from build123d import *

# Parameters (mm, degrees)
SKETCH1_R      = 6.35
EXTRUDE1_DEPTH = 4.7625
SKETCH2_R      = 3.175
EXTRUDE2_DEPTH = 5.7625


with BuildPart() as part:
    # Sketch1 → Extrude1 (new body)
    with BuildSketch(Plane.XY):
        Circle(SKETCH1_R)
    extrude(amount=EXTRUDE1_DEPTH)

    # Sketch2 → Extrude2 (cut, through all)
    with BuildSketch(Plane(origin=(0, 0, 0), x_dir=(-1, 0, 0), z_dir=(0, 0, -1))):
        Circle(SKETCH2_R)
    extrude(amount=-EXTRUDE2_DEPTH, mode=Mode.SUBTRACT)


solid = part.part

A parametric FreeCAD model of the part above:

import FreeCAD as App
import Part
import Sketcher
from FreeCAD import Vector
Q = App.Units.Quantity

doc = App.newDocument("Part")
body = doc.addObject("PartDesign::Body", "Body")

# Sketch on XY plane
sketch1 = body.newObject("Sketcher::SketchObject", "Sketch")
sketch1.AttachmentSupport = (doc.getObject("XY_Plane"), [""])
sketch1.MapMode = "FlatFace"
sketch1.addGeometry(Part.Circle(Vector(0, 0, 0), Vector(0, 0, 1), 6), False)
sketch1.addConstraint([
    Sketcher.Constraint("Coincident", 0, 3, -1, 1),
    Sketcher.Constraint("Diameter", 0, Q("0.5 in")),
])
pad1 = body.newObject("PartDesign::Pad", "Pad")
pad1.Profile = sketch1
pad1.Length = Q("0.1875 in")

# Sketch on XY plane
sketch2 = body.newObject("Sketcher::SketchObject", "Sketch001")
sketch2.AttachmentSupport = (doc.getObject("XY_Plane"), [""])
sketch2.MapMode = "FlatFace"
sketch2.addGeometry(Part.Circle(Vector(0, 0, 0), Vector(0, 0, 1), 3.2), False)
sketch2.addConstraint([
    Sketcher.Constraint("Coincident", 0, 3, -1, 1),
    Sketcher.Constraint("Diameter", 0, Q("0.25 in")),
])
pocket1 = body.newObject("PartDesign::Pocket", "Pocket")
pocket1.Profile = sketch2
pocket1.Type = "ThroughAll"
pocket1.Reversed = True

doc.recompute()
